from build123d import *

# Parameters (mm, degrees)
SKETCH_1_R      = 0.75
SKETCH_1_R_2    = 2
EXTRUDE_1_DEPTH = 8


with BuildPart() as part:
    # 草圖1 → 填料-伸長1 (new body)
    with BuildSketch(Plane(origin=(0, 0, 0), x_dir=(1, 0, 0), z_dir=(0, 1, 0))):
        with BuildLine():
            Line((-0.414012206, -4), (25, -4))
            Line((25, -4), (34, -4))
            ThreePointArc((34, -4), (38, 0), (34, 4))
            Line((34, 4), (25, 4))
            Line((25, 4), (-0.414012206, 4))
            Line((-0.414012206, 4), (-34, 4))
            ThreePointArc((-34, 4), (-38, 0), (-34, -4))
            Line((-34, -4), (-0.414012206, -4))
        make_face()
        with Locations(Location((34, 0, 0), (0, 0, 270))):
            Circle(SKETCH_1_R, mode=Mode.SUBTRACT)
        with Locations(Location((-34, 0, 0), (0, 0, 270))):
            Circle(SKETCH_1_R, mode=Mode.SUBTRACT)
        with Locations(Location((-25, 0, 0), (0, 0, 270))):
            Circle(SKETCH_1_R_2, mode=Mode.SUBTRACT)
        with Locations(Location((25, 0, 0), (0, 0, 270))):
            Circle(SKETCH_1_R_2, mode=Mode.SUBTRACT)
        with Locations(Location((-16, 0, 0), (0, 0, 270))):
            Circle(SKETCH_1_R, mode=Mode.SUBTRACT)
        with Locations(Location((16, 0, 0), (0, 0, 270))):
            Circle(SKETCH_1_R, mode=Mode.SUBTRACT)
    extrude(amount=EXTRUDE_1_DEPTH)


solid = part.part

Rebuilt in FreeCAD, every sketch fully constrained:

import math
import FreeCAD as App
import Part
import Sketcher
Q = App.Units.Quantity

doc = App.newDocument("Part")
body = doc.addObject("PartDesign::Body", "Body")

# Sketch on XZ plane
sketch1 = body.newObject("Sketcher::SketchObject", "Sketch")
sketch1.AttachmentSupport = (doc.getObject("XZ_Plane"), [""])
sketch1.MapMode = "FlatFace"
sketch1.addGeometry([
    Part.ArcOfCircle(Part.Circle(App.Vector(34, 0, 0), App.Vector(0, 0, 1), 4), math.radians(-90), math.radians(90)),  # 0
    Part.LineSegment(App.Vector(34, -4, 0), App.Vector(-34, -4, 0)),  # 1
    Part.ArcOfCircle(Part.Circle(App.Vector(-34, 0, 0), App.Vector(0, 0, 1), 4), math.radians(90), math.radians(270)),  # 2
    Part.LineSegment(App.Vector(-34, 4, 0), App.Vector(34, 4, 0)),  # 3
    Part.Circle(App.Vector(-34, 0, 0), App.Vector(0, 0, 1), 0.75),  # 4
    Part.Circle(App.Vector(-25, 0, 0), App.Vector(0, 0, 1), 2),  # 5
    Part.Circle(App.Vector(-16, 0, 0), App.Vector(0, 0, 1), 0.75),  # 6
    Part.Circle(App.Vector(16, 0, 0), App.Vector(0, 0, 1), 0.75),  # 7
    Part.Circle(App.Vector(25, 0, 0), App.Vector(0, 0, 1), 2),  # 8
    Part.Circle(App.Vector(34, 0, 0), App.Vector(0, 0, 1), 0.75),  # 9
], False)
sketch1.addConstraint([
    Sketcher.Constraint("Tangent", 0, 1, 1, 1),
    Sketcher.Constraint("Tangent", 1, 2, 2, 2),
    Sketcher.Constraint("Tangent", 2, 1, 3, 1),
    Sketcher.Constraint("Tangent", 3, 2, 0, 2),
    Sketcher.Constraint("Horizontal", 1),
    Sketcher.Constraint("Horizontal", 3),
    Sketcher.Constraint("Coincident", 4, 3, 2, 3),
    Sketcher.Constraint("Coincident", 9, 3, 0, 3),
    Sketcher.Constraint("Equal", 4, 6),
    Sketcher.Constraint("Equal", 6, 7),
    Sketcher.Constraint("Equal", 5, 8),
    Sketcher.Constraint("Equal", 7, 9),
    Sketcher.Constraint("Symmetric", 0, 3, 2, 3, -1, 1),
    Sketcher.Constraint("Symmetric", 6, 3, 7, 3, -1, 1),
    Sketcher.Constraint("Symmetric", 5, 3, 8, 3, -1, 1),
    Sketcher.Constraint("PointOnObject", 5, 3, -1),
    Sketcher.Constraint("PointOnObject", 6, 3, -1),
    Sketcher.Constraint("Diameter", 5, Q("4 mm")),
    Sketcher.Constraint("Radius", 0, Q("4 mm")),
    Sketcher.Constraint("Diameter", 4, Q("1.5 mm")),
    Sketcher.Constraint("DistanceX", 1, 2, 1, 1, Q("68 mm")),
    Sketcher.Constraint("DistanceX", 5, 3, -1, 1, Q("25 mm")),
    Sketcher.Constraint("DistanceX", 6, 3, -1, 1, Q("16 mm")),
])
pad1 = body.newObject("PartDesign::Pad", "Pad")
pad1.Profile = sketch1
pad1.Length = 8
pad1.Reversed = True

doc.recompute()
